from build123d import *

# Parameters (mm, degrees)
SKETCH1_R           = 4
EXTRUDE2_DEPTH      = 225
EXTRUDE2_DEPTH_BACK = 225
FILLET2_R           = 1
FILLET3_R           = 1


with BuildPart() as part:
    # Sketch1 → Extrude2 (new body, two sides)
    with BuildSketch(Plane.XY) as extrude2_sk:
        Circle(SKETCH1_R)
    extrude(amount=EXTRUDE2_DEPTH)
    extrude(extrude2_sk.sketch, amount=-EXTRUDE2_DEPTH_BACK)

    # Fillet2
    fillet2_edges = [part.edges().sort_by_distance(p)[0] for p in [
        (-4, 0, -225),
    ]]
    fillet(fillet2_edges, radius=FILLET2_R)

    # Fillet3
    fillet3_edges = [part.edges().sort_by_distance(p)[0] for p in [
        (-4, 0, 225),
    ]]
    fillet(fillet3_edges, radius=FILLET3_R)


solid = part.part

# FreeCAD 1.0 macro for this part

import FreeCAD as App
import Part
import Sketcher
from FreeCAD import Vector


def edges_at(feature, points):
    """Names of the edges that pass closest to the given points."""
    edges = feature.Shape.Edges
    near = lambda p: min(range(len(edges)), key=lambda i: edges[i].distToShape(Part.Vertex(*p))[0])
    return sorted({f"Edge{near(p) + 1}" for p in points})

doc = App.newDocument("Part")
params = doc.addObject("Spreadsheet::Sheet", "Params")
for row, (alias, value) in enumerate([
    ("sketch1_diameter", "8 mm"),
    ("pad1_length", "225 mm"),
    ("pad1_length2", "225 mm"),
    ("fillet_radius", "1 mm"),
    ("fillet2_radius", "1 mm"),
], start=1):
    params.set(f"A{row}", alias)
    params.set(f"B{row}", "=" + value)
    params.setAlias(f"B{row}", alias)

body = doc.addObject("PartDesign::Body", "Body")

sketch1 = body.newObject("Sketcher::SketchObject", "Sketch")
sketch1.AttachmentSupport = (doc.getObject("XY_Plane"), [""])
sketch1.MapMode = "FlatFace"
sketch1.addGeometry(Part.Circle(Vector(0, 0, 0), Vector(0, 0, 1), 4), False)
sketch1.addConstraint(Sketcher.Constraint("Coincident", 0, 3, -1, 1))
sketch1.addConstraint(Sketcher.Constraint("Diameter", 0, 8.0))
sketch1.setExpression("Constraints[1]", "Params.sketch1_diameter")
pad1 = body.newObject("PartDesign::Pad", "Pad")
pad1.Profile = sketch1
pad1.Type = "TwoLengths"
pad1.setExpression("Length", "Params.pad1_length")
pad1.setExpression("Length2", "Params.pad1_length2")
doc.recompute()

fillet = body.newObject("PartDesign::Fillet", "Fillet")
fillet.Base = (pad1, edges_at(pad1, [(-4, 0, -225)]))
fillet.setExpression("Radius", "Params.fillet_radius")
doc.recompute()

fillet2 = body.newObject("PartDesign::Fillet", "Fillet001")
fillet2.Base = (fillet, edges_at(fillet, [(-4, 0, 225)]))
fillet2.setExpression("Radius", "Params.fillet2_radius")

doc.recompute()
